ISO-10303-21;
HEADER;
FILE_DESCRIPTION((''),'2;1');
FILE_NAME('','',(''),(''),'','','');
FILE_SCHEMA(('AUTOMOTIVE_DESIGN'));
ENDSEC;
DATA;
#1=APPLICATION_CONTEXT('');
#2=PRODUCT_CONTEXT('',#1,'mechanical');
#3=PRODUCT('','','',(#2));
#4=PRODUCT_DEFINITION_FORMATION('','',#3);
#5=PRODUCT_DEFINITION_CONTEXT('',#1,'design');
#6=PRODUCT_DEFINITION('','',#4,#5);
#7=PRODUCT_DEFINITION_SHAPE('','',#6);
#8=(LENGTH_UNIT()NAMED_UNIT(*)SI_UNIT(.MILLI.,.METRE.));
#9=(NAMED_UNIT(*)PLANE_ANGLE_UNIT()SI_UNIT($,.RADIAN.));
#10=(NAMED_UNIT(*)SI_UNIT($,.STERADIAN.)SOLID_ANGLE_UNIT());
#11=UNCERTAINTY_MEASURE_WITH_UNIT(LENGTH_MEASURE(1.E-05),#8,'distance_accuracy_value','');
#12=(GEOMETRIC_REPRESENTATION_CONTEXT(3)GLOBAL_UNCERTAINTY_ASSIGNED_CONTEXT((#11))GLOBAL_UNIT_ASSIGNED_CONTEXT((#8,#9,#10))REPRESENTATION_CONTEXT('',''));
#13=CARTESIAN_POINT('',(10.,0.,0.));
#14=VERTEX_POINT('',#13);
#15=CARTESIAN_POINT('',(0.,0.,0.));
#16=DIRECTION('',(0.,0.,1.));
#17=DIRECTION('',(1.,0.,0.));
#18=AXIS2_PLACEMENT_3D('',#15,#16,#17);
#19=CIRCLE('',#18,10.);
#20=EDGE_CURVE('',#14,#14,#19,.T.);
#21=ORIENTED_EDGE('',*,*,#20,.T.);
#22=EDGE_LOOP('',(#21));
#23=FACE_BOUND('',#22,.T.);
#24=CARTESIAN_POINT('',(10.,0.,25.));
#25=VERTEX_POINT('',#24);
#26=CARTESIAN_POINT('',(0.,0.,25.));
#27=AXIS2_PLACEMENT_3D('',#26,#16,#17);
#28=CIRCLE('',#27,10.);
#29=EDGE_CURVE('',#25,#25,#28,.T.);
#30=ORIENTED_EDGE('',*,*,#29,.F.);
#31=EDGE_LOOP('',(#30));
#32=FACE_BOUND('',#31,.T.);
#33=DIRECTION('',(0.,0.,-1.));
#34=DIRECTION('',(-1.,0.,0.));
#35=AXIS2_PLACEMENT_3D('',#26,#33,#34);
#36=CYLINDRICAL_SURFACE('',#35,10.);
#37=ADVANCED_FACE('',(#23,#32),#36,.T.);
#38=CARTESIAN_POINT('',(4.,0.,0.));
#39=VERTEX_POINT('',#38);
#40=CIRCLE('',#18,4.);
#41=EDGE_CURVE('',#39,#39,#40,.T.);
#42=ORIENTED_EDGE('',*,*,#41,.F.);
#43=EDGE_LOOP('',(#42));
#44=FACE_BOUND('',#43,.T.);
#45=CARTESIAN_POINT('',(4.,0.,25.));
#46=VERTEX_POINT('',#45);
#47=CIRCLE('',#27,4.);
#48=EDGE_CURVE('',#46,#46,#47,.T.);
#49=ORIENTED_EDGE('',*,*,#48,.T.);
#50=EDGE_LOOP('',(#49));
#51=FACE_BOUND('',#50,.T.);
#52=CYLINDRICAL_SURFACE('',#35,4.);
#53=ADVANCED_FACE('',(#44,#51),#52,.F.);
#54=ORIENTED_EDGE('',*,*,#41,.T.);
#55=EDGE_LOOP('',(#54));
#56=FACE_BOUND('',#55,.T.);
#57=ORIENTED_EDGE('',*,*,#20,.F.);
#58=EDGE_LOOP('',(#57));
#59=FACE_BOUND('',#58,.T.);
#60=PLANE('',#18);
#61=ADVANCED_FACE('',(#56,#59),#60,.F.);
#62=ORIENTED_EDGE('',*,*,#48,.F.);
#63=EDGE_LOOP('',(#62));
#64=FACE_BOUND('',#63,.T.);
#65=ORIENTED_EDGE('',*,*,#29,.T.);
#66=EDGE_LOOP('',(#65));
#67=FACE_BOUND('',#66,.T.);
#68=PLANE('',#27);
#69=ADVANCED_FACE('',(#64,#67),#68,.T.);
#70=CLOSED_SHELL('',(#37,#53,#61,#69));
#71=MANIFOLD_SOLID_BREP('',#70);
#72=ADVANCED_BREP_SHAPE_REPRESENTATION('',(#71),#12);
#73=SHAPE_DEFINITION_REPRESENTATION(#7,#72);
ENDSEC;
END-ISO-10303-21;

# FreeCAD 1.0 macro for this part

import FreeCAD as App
import Part
import Sketcher

doc = App.newDocument("Part")
body = doc.addObject("PartDesign::Body", "Body")

sketch1 = doc.addObject("Sketcher::SketchObject", "Sketch")
body.addObject(sketch1)
sketch1.AttachmentSupport = (doc.XY_Plane, [""])
sketch1.MapMode = "FlatFace"
sketch1.addGeometry(Part.Circle(App.Vector(0, 0, 0), App.Vector(0, 0, 1), 10), False)
sketch1.addGeometry(Part.Circle(App.Vector(0, 0, 0), App.Vector(0, 0, 1), 4), False)
sketch1.addConstraint(Sketcher.Constraint("Coincident", 0, 3, -1, 1))
sketch1.addConstraint(Sketcher.Constraint("Coincident", 1, 3, -1, 1))
sketch1.addConstraint(Sketcher.Constraint("Diameter", 0, 20.0))
sketch1.addConstraint(Sketcher.Constraint("Diameter", 1, 8.0))
pad1 = doc.addObject("PartDesign::Pad", "Pad")
body.addObject(pad1)
pad1.Profile = sketch1
pad1.Length = 25

doc.recompute()
